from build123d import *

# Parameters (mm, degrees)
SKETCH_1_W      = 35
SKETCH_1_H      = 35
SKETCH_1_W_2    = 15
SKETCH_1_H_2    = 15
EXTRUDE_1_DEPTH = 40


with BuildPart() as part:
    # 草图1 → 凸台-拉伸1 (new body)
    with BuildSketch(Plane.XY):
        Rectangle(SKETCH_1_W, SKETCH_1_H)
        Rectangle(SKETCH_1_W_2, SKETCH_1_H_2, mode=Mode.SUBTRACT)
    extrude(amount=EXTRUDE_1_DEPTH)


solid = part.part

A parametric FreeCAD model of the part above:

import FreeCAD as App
import Part
import Sketcher

doc = App.newDocument("Part")
params = doc.addObject("Spreadsheet::Sheet", "Params")
for row, (alias, value) in enumerate([
    ("sketch1_width", "35 mm"),
    ("sketch1_width2", "15 mm"),
    ("pad1_length", "40 mm"),
], start=1):
    params.set(f"A{row}", alias)
    params.set(f"B{row}", "=" + value)
    params.setAlias(f"B{row}", alias)

body = doc.addObject("PartDesign::Body", "Body")

# Sketch on XY plane
sketch1 = doc.addObject("Sketcher::SketchObject", "Sketch")
body.addObject(sketch1)
sketch1.AttachmentSupport = (doc.XY_Plane, [""])
sketch1.MapMode = "FlatFace"
sketch1.addGeometry([
    Part.LineSegment(App.Vector(-18, 18, 0), App.Vector(-18, -18, 0)),  # 0
    Part.LineSegment(App.Vector(-18, -18, 0), App.Vector(18, -18, 0)),  # 1
    Part.LineSegment(App.Vector(18, -18, 0), App.Vector(18, 18, 0)),  # 2
    Part.LineSegment(App.Vector(18, 18, 0), App.Vector(-18, 18, 0)),  # 3
    Part.LineSegment(App.Vector(8, -8, 0), App.Vector(-8, -8, 0)),  # 4
    Part.LineSegment(App.Vector(-8, -8, 0), App.Vector(-8, 8, 0)),  # 5
    Part.LineSegment(App.Vector(-8, 8, 0), App.Vector(8, 8, 0)),  # 6
    Part.LineSegment(App.Vector(8, 8, 0), App.Vector(8, -8, 0)),  # 7
], False)
sketch1.addConstraint([
    Sketcher.Constraint("Coincident", 0, 2, 1, 1),
    Sketcher.Constraint("Coincident", 1, 2, 2, 1),
    Sketcher.Constraint("Coincident", 2, 2, 3, 1),
    Sketcher.Constraint("Coincident", 3, 2, 0, 1),
    Sketcher.Constraint("Coincident", 4, 2, 5, 1),
    Sketcher.Constraint("Coincident", 5, 2, 6, 1),
    Sketcher.Constraint("Coincident", 6, 2, 7, 1),
    Sketcher.Constraint("Coincident", 7, 2, 4, 1),
    Sketcher.Constraint("Vertical", 0),
    Sketcher.Constraint("Horizontal", 1),
    Sketcher.Constraint("Vertical", 2),
    Sketcher.Constraint("Horizontal", 3),
    Sketcher.Constraint("Horizontal", 4),
    Sketcher.Constraint("Vertical", 5),
    Sketcher.Constraint("Horizontal", 6),
    Sketcher.Constraint("Vertical", 7),
    Sketcher.Constraint("Symmetric", 0, 2, 2, 2, -1, 1),
    Sketcher.Constraint("Symmetric", 4, 2, 6, 2, -1, 1),
    Sketcher.Constraint("Equal", 3, 0),
    Sketcher.Constraint("Equal", 6, 5),
    Sketcher.Constraint("DistanceX", 1, 1, 1, 2, 35.0),
    Sketcher.Constraint("DistanceX", 4, 2, 4, 1, 15.0),
])
sketch1.setExpression("Constraints[20]", "Params.sketch1_width")
sketch1.setExpression("Constraints[21]", "Params.sketch1_width2")
pad1 = doc.addObject("PartDesign::Pad", "Pad")
body.addObject(pad1)
pad1.Profile = sketch1
pad1.setExpression("Length", "Params.pad1_length")

doc.recompute()
